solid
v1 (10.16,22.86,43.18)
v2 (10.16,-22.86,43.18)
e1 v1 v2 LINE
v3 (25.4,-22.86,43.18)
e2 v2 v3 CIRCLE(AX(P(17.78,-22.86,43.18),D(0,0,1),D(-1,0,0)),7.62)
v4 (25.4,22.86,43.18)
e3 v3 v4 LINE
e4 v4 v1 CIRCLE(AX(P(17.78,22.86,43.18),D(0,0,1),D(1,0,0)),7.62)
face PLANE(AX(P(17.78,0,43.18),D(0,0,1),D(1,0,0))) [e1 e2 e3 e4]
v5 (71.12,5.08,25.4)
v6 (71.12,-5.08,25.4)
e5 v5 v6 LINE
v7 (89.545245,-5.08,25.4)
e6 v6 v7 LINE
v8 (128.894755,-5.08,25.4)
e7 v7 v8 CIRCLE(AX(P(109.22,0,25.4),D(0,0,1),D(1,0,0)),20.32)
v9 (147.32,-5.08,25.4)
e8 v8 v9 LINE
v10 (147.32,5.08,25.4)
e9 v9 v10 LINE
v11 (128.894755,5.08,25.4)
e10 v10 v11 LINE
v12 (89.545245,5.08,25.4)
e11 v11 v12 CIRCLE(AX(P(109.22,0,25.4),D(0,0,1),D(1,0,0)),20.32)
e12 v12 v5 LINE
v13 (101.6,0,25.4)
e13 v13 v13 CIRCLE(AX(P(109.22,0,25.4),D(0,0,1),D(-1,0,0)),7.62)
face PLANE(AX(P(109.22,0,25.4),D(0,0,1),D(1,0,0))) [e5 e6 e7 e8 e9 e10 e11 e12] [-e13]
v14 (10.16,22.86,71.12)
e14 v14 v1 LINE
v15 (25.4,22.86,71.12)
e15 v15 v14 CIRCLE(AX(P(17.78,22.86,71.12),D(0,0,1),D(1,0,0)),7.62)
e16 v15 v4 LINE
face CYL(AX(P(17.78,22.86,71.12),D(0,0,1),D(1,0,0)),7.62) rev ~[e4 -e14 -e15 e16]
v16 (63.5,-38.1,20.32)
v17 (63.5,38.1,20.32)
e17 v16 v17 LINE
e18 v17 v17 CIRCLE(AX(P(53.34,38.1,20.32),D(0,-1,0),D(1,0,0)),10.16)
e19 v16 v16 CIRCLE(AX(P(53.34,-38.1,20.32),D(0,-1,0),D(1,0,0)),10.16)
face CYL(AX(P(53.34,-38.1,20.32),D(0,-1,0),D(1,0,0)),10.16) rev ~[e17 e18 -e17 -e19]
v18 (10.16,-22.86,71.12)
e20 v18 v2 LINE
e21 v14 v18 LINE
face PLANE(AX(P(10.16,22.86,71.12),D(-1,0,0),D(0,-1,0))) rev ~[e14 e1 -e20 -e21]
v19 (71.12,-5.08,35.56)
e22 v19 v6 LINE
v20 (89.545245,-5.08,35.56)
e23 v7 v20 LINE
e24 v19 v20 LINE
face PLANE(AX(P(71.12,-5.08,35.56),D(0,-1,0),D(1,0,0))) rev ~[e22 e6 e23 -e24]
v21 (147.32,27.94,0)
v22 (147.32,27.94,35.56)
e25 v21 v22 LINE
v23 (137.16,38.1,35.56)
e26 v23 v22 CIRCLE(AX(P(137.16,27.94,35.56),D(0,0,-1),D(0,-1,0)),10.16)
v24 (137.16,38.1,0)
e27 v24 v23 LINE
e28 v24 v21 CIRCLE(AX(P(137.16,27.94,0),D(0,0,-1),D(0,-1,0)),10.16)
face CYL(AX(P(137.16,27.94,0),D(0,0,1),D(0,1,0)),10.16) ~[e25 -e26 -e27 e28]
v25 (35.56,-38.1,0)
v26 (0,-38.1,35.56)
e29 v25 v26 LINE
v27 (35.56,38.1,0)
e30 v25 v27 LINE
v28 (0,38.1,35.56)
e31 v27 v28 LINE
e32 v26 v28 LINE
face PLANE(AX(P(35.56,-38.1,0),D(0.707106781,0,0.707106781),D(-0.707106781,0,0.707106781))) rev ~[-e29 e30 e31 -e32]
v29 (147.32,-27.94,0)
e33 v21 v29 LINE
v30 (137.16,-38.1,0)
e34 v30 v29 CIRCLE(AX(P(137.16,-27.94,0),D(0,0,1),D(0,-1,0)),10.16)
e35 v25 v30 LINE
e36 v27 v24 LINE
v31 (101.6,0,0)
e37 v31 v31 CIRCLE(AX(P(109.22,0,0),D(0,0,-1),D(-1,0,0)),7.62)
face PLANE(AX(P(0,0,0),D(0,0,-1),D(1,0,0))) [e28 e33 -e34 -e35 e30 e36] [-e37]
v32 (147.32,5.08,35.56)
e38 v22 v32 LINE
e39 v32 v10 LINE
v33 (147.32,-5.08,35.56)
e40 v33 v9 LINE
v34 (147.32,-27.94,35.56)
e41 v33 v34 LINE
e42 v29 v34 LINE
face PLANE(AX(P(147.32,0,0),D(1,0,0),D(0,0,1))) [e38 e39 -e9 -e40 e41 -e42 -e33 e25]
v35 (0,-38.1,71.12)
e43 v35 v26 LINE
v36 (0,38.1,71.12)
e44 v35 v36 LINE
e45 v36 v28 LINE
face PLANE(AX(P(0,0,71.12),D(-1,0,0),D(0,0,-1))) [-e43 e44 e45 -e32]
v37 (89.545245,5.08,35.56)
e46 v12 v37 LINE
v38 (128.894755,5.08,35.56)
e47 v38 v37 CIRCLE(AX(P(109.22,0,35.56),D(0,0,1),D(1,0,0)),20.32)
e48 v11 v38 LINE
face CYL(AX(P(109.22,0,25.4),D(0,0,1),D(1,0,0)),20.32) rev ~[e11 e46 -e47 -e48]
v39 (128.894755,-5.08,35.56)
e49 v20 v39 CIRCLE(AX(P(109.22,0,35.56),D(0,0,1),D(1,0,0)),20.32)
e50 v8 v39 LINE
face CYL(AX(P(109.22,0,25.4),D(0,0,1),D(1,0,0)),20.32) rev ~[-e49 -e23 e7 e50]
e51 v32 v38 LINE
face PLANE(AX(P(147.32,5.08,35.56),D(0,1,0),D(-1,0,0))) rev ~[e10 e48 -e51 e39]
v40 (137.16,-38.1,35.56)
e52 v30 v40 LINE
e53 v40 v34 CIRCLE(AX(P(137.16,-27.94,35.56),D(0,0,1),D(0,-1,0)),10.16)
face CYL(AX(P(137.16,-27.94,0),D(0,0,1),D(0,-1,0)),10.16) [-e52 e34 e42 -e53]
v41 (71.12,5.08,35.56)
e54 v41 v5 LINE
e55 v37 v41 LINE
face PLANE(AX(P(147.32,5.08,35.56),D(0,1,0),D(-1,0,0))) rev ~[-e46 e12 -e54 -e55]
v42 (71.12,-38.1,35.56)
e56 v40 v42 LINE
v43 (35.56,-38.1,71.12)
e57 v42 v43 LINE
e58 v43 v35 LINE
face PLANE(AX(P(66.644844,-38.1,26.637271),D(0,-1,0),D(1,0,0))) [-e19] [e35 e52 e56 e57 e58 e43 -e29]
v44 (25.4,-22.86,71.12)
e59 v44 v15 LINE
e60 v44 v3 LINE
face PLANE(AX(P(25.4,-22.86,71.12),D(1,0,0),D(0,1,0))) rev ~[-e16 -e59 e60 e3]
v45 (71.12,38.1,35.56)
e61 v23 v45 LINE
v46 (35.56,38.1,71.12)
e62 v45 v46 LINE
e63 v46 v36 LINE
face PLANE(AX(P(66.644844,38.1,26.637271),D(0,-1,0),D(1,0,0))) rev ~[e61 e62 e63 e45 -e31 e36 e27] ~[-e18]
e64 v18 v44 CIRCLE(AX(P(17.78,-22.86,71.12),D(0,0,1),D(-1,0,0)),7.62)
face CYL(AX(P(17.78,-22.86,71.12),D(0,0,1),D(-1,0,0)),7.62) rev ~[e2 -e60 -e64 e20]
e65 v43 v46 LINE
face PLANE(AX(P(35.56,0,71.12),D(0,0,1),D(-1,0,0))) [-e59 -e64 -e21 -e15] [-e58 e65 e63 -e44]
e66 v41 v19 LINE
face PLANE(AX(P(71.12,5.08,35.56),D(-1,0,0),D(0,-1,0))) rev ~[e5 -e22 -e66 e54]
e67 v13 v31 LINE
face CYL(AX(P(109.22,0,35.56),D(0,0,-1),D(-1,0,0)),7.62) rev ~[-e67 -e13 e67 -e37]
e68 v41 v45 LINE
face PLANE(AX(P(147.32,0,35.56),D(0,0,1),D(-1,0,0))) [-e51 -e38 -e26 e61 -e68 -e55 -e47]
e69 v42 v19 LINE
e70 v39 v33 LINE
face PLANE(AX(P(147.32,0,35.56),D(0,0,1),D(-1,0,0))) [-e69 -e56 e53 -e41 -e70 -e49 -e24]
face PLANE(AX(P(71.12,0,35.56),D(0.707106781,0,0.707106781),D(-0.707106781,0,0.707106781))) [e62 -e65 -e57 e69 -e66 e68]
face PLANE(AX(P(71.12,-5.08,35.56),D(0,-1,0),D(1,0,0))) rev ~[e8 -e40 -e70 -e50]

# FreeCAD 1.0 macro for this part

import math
import FreeCAD as App
import Part
import Sketcher

V = App.Vector
Q = App.Units.Quantity


def edges_at(feature, points):
    """Names of the edges that pass closest to the given points."""
    edges = feature.Shape.Edges
    near = lambda p: min(range(len(edges)), key=lambda i: edges[i].distToShape(Part.Vertex(*p))[0])
    return sorted({f"Edge{near(p) + 1}" for p in points})


def add_polygon(sketch, points):
    """Adds a closed chain of lines whose ends are joined by coincident constraints."""
    first, n = sketch.GeometryCount, len(points)
    for a, b in zip(points, points[1:] + points[:1]):
        sketch.addGeometry(Part.LineSegment(App.Vector(*a, 0), App.Vector(*b, 0)), False)
    for i in range(n):
        sketch.addConstraint(Sketcher.Constraint("Coincident", first + i, 2, first + (i + 1) % n, 1))

doc = App.newDocument("Part")
body = doc.addObject("PartDesign::Body", "Body")

# Sketch on XZ plane
sketch1 = body.newObject("Sketcher::SketchObject", "Sketch")
sketch1.AttachmentSupport = (doc.getObject("XZ_Plane"), [""])
sketch1.MapMode = "FlatFace"
add_polygon(sketch1, [(0, 71), (0, 0), (147, 0), (147, 36), (71, 36), (36, 71)])  # lines 0-5
sketch1.addConstraint(Sketcher.Constraint("Vertical", 0))
sketch1.addConstraint(Sketcher.Constraint("Horizontal", 1))
sketch1.addConstraint(Sketcher.Constraint("Vertical", 2))
sketch1.addConstraint(Sketcher.Constraint("Horizontal", 3))
sketch1.addConstraint(Sketcher.Constraint("Horizontal", 5))
sketch1.addConstraint(Sketcher.Constraint("Coincident", 0, 2, -1, 1))
sketch1.addConstraint(Sketcher.Constraint("Equal", 5, 2))
sketch1.addConstraint(Sketcher.Constraint("DistanceX", 3, 2, 3, 1, Q("3 in")))
sketch1.addConstraint(Sketcher.Constraint("DistanceX", 1, 1, 1, 2, Q("5.8 in")))
sketch1.addConstraint(Sketcher.Constraint("DistanceX", 5, 2, 5, 1, Q("1.4 in")))
sketch1.addConstraint(Sketcher.Constraint("DistanceY", 0, 2, 0, 1, Q("2.8 in")))
pad1 = body.newObject("PartDesign::Pad", "Pad")
pad1.Profile = sketch1
pad1.Length = Q("3 in")
pad1.Midplane = True

# Sketch on XZ plane
sketch2 = body.newObject("Sketcher::SketchObject", "Sketch001")
sketch2.AttachmentSupport = (doc.getObject("XZ_Plane"), [""])
sketch2.MapMode = "FlatFace"
sketch2.AttachmentOffset = App.Placement(V(0, 0, 1.5 * 25.4), App.Rotation())
add_polygon(sketch2, [(0, 36), (0, 0), (36, 0)])  # lines 0-2
sketch2.addConstraint(Sketcher.Constraint("Vertical", 0))
sketch2.addConstraint(Sketcher.Constraint("Horizontal", 1))
sketch2.addConstraint(Sketcher.Constraint("Coincident", 0, 2, -1, 1))
sketch2.addConstraint(Sketcher.Constraint("Equal", 1, 0))
sketch2.addConstraint(Sketcher.Constraint("DistanceX", 1, 1, 1, 2, Q("1.4 in")))
pocket1 = body.newObject("PartDesign::Pocket", "Pocket")
pocket1.Profile = sketch2
pocket1.Type = "ThroughAll"
doc.recompute()

fillet = body.newObject("PartDesign::Fillet", "Fillet")
fillet.Base = (pocket1, edges_at(pocket1, [(147.32, -38.1, 17.78), (147.32, 38.1, 17.78)]))
fillet.Radius = Q("0.4 in")

# Sketch on XY plane
sketch3 = body.newObject("Sketcher::SketchObject", "Sketch002")
sketch3.AttachmentSupport = (doc.getObject("XY_Plane"), [""])
sketch3.MapMode = "FlatFace"
sketch3.AttachmentOffset = App.Placement(V(0, 0, 2.8 * 25.4), App.Rotation())
sketch3.addGeometry(Part.ArcOfCircle(Part.Circle(V(18, 23, 0), V(0, 0, 1), 8), math.radians(0), math.radians(180)), False)
sketch3.addGeometry(Part.LineSegment(V(10, 23, 0), V(10, -23, 0)), False)
sketch3.addGeometry(Part.ArcOfCircle(Part.Circle(V(18, -23, 0), V(0, 0, 1), 8), math.radians(180), math.radians(360)), False)
sketch3.addGeometry(Part.LineSegment(V(25, -23, 0), V(25, 23, 0)), False)
sketch3.addConstraint(Sketcher.Constraint("Tangent", 0, 2, 1, 1))
sketch3.addConstraint(Sketcher.Constraint("Tangent", 1, 2, 2, 1))
sketch3.addConstraint(Sketcher.Constraint("Tangent", 2, 2, 3, 1))
sketch3.addConstraint(Sketcher.Constraint("Tangent", 3, 2, 0, 1))
sketch3.addConstraint(Sketcher.Constraint("Vertical", 1))
sketch3.addConstraint(Sketcher.Constraint("Vertical", 3))
sketch3.addConstraint(Sketcher.Constraint("Radius", 0, Q("0.3 in")))
sketch3.addConstraint(Sketcher.Constraint("DistanceY", 1, 2, 1, 1, Q("1.8 in")))
sketch3.addConstraint(Sketcher.Constraint("DistanceX", -1, 1, 2, 2, Q("1 in")))
sketch3.addConstraint(Sketcher.Constraint("DistanceY", -1, 1, 0, 3, Q("0.9 in")))
pocket2 = body.newObject("PartDesign::Pocket", "Pocket001")
pocket2.Profile = sketch3
pocket2.Length = Q("1.1 in")

# Sketch on XY plane
sketch4 = body.newObject("Sketcher::SketchObject", "Sketch003")
sketch4.AttachmentSupport = (doc.getObject("XY_Plane"), [""])
sketch4.MapMode = "FlatFace"
sketch4.AttachmentOffset = App.Placement(V(0, 0, 1.4 * 25.4), App.Rotation())
sketch4.addGeometry(Part.Circle(V(109, 0, 0), V(0, 0, 1), 8), False)
sketch4.addConstraint(Sketcher.Constraint("PointOnObject", 0, 3, -1))
sketch4.addConstraint(Sketcher.Constraint("Diameter", 0, Q("0.6 in")))
sketch4.addConstraint(Sketcher.Constraint("DistanceX", -1, 1, 0, 3, Q("4.3 in")))
doc.recompute()
hole = body.newObject("PartDesign::Hole", "Hole")
hole.Profile = sketch4
hole.ThreadType = "None"
hole.Diameter = Q("0.6 in")
hole.DepthType = "ThroughAll"
hole.HoleCutType = "Counterbore"
hole.HoleCutDiameter = Q("1.6 in")
hole.HoleCutDepth = Q("0.4 in")

# Sketch on XY plane
sketch5 = body.newObject("Sketcher::SketchObject", "Sketch004")
sketch5.AttachmentSupport = (doc.getObject("XY_Plane"), [""])
sketch5.MapMode = "FlatFace"
sketch5.AttachmentOffset = App.Placement(V(0, 0, 1.4 * 25.4), App.Rotation())
add_polygon(sketch5, [(71, 5), (71, -5), (147, -5), (147, 5)])  # lines 0-3
sketch5.addConstraint(Sketcher.Constraint("Vertical", 0))
sketch5.addConstraint(Sketcher.Constraint("Horizontal", 1))
sketch5.addConstraint(Sketcher.Constraint("Vertical", 2))
sketch5.addConstraint(Sketcher.Constraint("Horizontal", 3))
sketch5.addConstraint(Sketcher.Constraint("DistanceX", 1, 1, 1, 2, Q("3 in")))
sketch5.addConstraint(Sketcher.Constraint("DistanceY", 0, 2, 0, 1, Q("0.4 in")))
sketch5.addConstraint(Sketcher.Constraint("DistanceX", -1, 1, 0, 2, Q("2.8 in")))
sketch5.addConstraint(Sketcher.Constraint("DistanceY", 0, 2, -1, 1, Q("0.2 in")))
pocket3 = body.newObject("PartDesign::Pocket", "Pocket002")
pocket3.Profile = sketch5
pocket3.Length = Q("0.4 in")

# Sketch on XZ plane
sketch6 = body.newObject("Sketcher::SketchObject", "Sketch005")
sketch6.AttachmentSupport = (doc.getObject("XZ_Plane"), [""])
sketch6.MapMode = "FlatFace"
sketch6.AttachmentOffset = App.Placement(V(0, 0, 1.5 * 25.4), App.Rotation())
sketch6.addGeometry(Part.Circle(V(53, 20, 0), V(0, 0, 1), 10), False)
sketch6.addConstraint(Sketcher.Constraint("Diameter", 0, Q("0.8 in")))
sketch6.addConstraint(Sketcher.Constraint("DistanceX", -1, 1, 0, 3, Q("2.1 in")))
sketch6.addConstraint(Sketcher.Constraint("DistanceY", -1, 1, 0, 3, Q("0.8 in")))
pocket4 = body.newObject("PartDesign::Pocket", "Pocket003")
pocket4.Profile = sketch6
pocket4.Type = "ThroughAll"

doc.recompute()
